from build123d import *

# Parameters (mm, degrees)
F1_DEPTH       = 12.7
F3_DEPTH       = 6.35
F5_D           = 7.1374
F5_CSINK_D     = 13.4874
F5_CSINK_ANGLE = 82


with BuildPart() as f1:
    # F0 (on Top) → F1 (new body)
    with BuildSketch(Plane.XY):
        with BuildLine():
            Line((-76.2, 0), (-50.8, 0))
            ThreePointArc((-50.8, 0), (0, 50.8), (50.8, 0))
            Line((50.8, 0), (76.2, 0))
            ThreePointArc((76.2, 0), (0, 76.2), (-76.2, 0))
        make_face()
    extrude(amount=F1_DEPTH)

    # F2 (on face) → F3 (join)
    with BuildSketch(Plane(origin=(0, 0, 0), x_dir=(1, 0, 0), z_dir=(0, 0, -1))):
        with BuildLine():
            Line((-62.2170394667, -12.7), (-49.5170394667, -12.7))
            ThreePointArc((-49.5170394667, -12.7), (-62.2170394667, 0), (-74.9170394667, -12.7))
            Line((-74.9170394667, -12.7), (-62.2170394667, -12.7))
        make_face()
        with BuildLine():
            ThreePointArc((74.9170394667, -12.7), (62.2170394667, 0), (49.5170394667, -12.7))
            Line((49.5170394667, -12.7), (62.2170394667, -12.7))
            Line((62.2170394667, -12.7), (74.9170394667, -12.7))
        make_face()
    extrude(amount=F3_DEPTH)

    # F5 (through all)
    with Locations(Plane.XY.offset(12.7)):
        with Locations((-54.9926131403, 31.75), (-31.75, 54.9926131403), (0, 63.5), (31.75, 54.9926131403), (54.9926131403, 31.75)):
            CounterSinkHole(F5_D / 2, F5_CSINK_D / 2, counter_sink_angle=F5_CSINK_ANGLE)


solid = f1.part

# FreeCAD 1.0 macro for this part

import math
import FreeCAD as App
import Part
import Sketcher
from FreeCAD import Vector
Q = App.Units.Quantity

doc = App.newDocument("Part")
body = doc.addObject("PartDesign::Body", "Body")

# Sketch on XY plane
sketch1 = doc.addObject("Sketcher::SketchObject", "Sketch")
body.addObject(sketch1)
sketch1.AttachmentSupport = (doc.XY_Plane, [""])
sketch1.MapMode = "FlatFace"
sketch1.addGeometry([
    Part.LineSegment(Vector(-76, 0, 0), Vector(-51, 0, 0)),
    Part.ArcOfCircle(Part.Circle(Vector(0, 0, 0), Vector(0, 0, 1), 51), math.radians(0), math.radians(180)),
    Part.LineSegment(Vector(51, 0, 0), Vector(76, 0, 0)),
    Part.ArcOfCircle(Part.Circle(Vector(0, 0, 0), Vector(0, 0, 1), 76), math.radians(0), math.radians(180)),
], False)
sketch1.addConstraint([
    Sketcher.Constraint("Coincident", 0, 2, 1, 2),
    Sketcher.Constraint("Coincident", 1, 1, 2, 1),
    Sketcher.Constraint("Coincident", 2, 2, 3, 1),
    Sketcher.Constraint("Coincident", 3, 2, 0, 1),
    Sketcher.Constraint("Horizontal", 0),
    Sketcher.Constraint("Horizontal", 2),
    Sketcher.Constraint("Coincident", 1, 3, -1, 1),
    Sketcher.Constraint("Coincident", 3, 3, -1, 1),
    Sketcher.Constraint("PointOnObject", 0, 2, -1),
    Sketcher.Constraint("PointOnObject", 1, 1, -1),
    Sketcher.Constraint("Radius", 1, Q("2 in")),
    Sketcher.Constraint("Radius", 3, Q("3 in")),
])
pad1 = doc.addObject("PartDesign::Pad", "Pad")
body.addObject(pad1)
pad1.Profile = sketch1
pad1.Length = Q("0.5 in")

# Sketch on XY plane
sketch2 = doc.addObject("Sketcher::SketchObject", "Sketch001")
body.addObject(sketch2)
sketch2.AttachmentSupport = (doc.XY_Plane, [""])
sketch2.MapMode = "FlatFace"
sketch2.addGeometry([
    Part.ArcOfCircle(Part.Circle(Vector(-62, 13, 0), Vector(0, 0, 1), 13), math.radians(180), math.radians(360)),
    Part.LineSegment(Vector(-75, 13, 0), Vector(-50, 13, 0)),
    Part.ArcOfCircle(Part.Circle(Vector(62, 13, 0), Vector(0, 0, 1), 13), math.radians(180), math.radians(360)),
    Part.LineSegment(Vector(50, 13, 0), Vector(75, 13, 0)),
], False)
sketch2.addConstraint([
    Sketcher.Constraint("Coincident", 0, 1, 1, 1),
    Sketcher.Constraint("Coincident", 1, 2, 0, 2),
    Sketcher.Constraint("Coincident", 2, 1, 3, 1),
    Sketcher.Constraint("Coincident", 3, 2, 2, 2),
    Sketcher.Constraint("Horizontal", 1),
    Sketcher.Constraint("Horizontal", 3),
    Sketcher.Constraint("Equal", 0, 2),
    Sketcher.Constraint("Symmetric", 0, 3, 2, 3, -2),
    Sketcher.Constraint("Horizontal", 2, 3, 0, 1),
    Sketcher.Constraint("Horizontal", 1, 2, 2, 1),
    Sketcher.Constraint("Radius", 0, Q("0.5 in")),
    Sketcher.Constraint("DistanceY", -1, 1, 0, 3, Q("0.5 in")),
    Sketcher.Constraint("DistanceX", 0, 3, -1, 1, 62.217039),
])
pad2 = doc.addObject("PartDesign::Pad", "Pad001")
body.addObject(pad2)
pad2.Profile = sketch2
pad2.Length = Q("0.25 in")
pad2.Reversed = True

# Sketch on XY plane
sketch3 = doc.addObject("Sketcher::SketchObject", "Sketch002")
body.addObject(sketch3)
sketch3.AttachmentSupport = (doc.XY_Plane, [""])
sketch3.MapMode = "FlatFace"
sketch3.AttachmentOffset = App.Placement(Vector(0, 0, 0.5 * 25.4), App.Rotation())
sketch3.addGeometry([
    Part.Circle(Vector(-55, 31.8, 0), Vector(0, 0, 1), 3.6),  # 0
    Part.Circle(Vector(-31.8, 55, 0), Vector(0, 0, 1), 3.6),  # 1
    Part.Circle(Vector(0, 63.5, 0), Vector(0, 0, 1), 3.6),  # 2
    Part.Circle(Vector(31.8, 55, 0), Vector(0, 0, 1), 3.6),  # 3
    Part.Circle(Vector(55, 31.8, 0), Vector(0, 0, 1), 3.6),  # 4
], False)
sketch3.addConstraint([
    Sketcher.Constraint("Equal", 0, 1),
    Sketcher.Constraint("Equal", 1, 2),
    Sketcher.Constraint("Equal", 2, 3),
    Sketcher.Constraint("Equal", 3, 4),
    Sketcher.Constraint("Symmetric", 1, 3, 3, 3, -2),
    Sketcher.Constraint("Symmetric", 0, 3, 4, 3, -2),
    Sketcher.Constraint("PointOnObject", 2, 3, -2),
    Sketcher.Constraint("Diameter", 0, Q("0.281 in")),
    Sketcher.Constraint("DistanceY", -1, 1, 2, 3, Q("2.5 in")),
    Sketcher.Constraint("DistanceX", 1, 3, 3, 3, Q("2.5 in")),
    Sketcher.Constraint("DistanceY", -1, 1, 0, 3, Q("1.25 in")),
    Sketcher.Constraint("DistanceX", 0, 3, -1, 1, 54.992613),
    Sketcher.Constraint("DistanceY", -1, 1, 1, 3, 54.992613),
])
doc.recompute()
hole = doc.addObject("PartDesign::Hole", "Hole")
body.addObject(hole)
hole.Profile = sketch3
hole.ThreadType = "None"
hole.Diameter = Q("0.281 in")
hole.DepthType = "ThroughAll"
hole.HoleCutType = "Countersink"
hole.HoleCutDiameter = Q("0.531 in")
hole.HoleCutCountersinkAngle = 82

doc.recompute()
